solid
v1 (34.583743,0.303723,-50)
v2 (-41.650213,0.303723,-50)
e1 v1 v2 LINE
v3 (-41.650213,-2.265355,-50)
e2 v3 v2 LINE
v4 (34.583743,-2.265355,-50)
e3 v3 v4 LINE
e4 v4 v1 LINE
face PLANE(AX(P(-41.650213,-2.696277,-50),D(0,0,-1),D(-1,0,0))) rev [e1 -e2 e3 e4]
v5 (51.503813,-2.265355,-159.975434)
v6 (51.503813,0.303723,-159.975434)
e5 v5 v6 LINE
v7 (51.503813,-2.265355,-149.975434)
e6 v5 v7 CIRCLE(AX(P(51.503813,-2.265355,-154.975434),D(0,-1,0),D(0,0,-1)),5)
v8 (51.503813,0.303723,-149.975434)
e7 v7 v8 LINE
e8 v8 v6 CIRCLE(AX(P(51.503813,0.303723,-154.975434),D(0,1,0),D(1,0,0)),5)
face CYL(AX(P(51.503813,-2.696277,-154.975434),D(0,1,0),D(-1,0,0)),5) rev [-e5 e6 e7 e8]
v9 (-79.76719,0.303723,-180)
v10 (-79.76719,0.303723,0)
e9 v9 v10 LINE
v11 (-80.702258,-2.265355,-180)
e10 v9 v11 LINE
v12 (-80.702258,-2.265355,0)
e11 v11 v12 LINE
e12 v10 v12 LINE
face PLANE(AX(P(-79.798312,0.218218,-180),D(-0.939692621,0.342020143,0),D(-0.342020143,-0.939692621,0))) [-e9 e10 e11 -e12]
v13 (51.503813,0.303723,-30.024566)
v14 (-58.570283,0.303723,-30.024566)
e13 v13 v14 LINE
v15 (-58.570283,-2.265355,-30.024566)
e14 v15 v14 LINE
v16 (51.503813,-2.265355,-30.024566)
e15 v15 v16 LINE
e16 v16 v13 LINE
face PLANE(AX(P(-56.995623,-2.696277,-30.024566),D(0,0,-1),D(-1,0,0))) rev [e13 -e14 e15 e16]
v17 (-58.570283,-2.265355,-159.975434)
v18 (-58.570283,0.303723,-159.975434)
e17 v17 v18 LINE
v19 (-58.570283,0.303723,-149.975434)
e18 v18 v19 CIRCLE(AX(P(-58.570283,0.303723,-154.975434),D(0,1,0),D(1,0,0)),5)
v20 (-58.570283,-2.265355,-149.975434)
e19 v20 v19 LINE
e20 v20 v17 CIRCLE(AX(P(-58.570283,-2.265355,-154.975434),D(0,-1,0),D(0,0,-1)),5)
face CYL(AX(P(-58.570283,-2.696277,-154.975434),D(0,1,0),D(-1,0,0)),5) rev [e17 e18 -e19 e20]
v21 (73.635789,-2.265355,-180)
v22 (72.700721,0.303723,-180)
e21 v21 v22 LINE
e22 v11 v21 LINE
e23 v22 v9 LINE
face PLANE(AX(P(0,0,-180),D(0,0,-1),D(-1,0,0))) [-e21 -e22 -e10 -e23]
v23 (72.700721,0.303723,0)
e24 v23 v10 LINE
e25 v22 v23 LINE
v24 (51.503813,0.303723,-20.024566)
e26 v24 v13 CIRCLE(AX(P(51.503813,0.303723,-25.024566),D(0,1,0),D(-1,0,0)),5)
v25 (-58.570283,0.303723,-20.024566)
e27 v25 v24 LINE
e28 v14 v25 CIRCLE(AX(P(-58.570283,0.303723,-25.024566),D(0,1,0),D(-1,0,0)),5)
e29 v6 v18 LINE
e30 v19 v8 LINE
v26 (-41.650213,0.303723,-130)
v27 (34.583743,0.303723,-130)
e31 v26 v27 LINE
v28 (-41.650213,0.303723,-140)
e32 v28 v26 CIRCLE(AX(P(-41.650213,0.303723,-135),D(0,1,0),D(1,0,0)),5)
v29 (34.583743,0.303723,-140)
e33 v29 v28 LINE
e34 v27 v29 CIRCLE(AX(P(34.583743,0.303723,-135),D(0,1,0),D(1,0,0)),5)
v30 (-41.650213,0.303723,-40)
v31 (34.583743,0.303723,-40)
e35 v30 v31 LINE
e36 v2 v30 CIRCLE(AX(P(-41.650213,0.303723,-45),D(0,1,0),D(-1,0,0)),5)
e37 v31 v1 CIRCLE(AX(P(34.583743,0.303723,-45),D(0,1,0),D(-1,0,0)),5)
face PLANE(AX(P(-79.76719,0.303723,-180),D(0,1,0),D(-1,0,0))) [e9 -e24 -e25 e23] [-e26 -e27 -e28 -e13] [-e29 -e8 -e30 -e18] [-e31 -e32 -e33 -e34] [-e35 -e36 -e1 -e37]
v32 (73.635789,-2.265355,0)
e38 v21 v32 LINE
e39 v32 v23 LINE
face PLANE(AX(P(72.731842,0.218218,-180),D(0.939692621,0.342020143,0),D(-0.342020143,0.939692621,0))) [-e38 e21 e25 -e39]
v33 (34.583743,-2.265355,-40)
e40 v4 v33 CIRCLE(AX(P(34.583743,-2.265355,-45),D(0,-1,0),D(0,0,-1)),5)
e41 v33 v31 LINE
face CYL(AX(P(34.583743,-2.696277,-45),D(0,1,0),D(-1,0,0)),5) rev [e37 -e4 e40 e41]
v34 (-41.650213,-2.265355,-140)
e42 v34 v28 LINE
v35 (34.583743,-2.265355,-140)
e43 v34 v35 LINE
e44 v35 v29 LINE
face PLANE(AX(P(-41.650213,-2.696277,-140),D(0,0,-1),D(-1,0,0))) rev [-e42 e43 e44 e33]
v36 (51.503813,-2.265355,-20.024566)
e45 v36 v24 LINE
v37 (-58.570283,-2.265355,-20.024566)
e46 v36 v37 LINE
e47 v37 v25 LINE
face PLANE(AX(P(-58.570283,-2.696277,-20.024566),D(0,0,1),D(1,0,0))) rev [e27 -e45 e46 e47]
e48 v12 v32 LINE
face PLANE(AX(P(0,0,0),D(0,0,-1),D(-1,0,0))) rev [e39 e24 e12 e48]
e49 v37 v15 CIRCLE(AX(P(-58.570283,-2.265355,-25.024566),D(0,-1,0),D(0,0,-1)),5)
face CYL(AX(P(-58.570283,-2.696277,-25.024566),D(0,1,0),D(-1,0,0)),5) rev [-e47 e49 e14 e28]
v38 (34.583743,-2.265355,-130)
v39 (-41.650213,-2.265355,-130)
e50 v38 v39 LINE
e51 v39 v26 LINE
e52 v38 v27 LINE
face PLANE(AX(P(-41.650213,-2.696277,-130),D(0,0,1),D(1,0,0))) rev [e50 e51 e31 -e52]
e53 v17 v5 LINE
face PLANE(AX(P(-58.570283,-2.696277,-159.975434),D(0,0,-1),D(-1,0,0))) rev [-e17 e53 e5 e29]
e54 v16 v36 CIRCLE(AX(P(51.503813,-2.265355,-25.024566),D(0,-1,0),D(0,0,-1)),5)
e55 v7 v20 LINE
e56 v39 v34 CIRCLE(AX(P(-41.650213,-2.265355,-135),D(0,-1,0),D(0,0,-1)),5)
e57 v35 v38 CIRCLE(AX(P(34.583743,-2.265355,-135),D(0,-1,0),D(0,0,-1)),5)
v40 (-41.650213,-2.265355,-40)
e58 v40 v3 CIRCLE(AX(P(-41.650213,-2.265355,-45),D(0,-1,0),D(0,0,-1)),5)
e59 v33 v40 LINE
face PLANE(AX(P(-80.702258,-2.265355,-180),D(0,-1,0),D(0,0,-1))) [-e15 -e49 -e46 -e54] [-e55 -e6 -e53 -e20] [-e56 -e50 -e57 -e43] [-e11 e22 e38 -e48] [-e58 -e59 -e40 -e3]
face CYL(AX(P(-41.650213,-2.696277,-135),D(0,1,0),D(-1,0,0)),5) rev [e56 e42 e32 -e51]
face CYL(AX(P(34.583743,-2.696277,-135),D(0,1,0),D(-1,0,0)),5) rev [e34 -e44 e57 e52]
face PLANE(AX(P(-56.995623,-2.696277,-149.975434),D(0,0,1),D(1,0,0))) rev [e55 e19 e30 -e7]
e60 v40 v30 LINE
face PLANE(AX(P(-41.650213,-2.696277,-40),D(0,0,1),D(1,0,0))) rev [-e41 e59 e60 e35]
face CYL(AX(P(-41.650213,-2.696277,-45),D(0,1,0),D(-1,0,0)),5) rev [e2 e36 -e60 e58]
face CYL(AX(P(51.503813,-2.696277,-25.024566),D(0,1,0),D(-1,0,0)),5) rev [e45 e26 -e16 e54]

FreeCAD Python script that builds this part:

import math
import FreeCAD as App
import Part
import Sketcher
from FreeCAD import Vector
Q = App.Units.Quantity


def add_polygon(sketch, points):
    """Adds a closed chain of lines whose ends are joined by coincident constraints."""
    first, n = sketch.GeometryCount, len(points)
    for a, b in zip(points, points[1:] + points[:1]):
        sketch.addGeometry(Part.LineSegment(App.Vector(*a, 0), App.Vector(*b, 0)), False)
    for i in range(n):
        sketch.addConstraint(Sketcher.Constraint("Coincident", first + i, 2, first + (i + 1) % n, 1))

doc = App.newDocument("Part")
params = doc.addObject("Spreadsheet::Sheet", "Params")
for row, (alias, value) in enumerate([
    ("pad1_length", "180 mm"),
    ("sketch2_radius", "5 mm"),
    ("pocket1_length", "3 mm"),
], start=1):
    params.set(f"A{row}", alias)
    params.set(f"B{row}", "=" + value)
    params.setAlias(f"B{row}", alias)

body = doc.addObject("PartDesign::Body", "Body")

sketch1 = body.newObject("Sketcher::SketchObject", "Sketch")
sketch1.AttachmentSupport = (doc.getObject("XY_Plane"), [""])
sketch1.MapMode = "FlatFace"
add_polygon(sketch1, [(-79.8, 0.22), (-80.7, -2.27), (73.64, -2.27), (72.73, 0.22), (72.7, 0.3), (-79.77, 0.3)])
sketch1.addConstraint(Sketcher.Constraint("Horizontal", 1))
sketch1.addConstraint(Sketcher.Constraint("Horizontal", 4))
sketch1.addConstraint(Sketcher.Constraint("Parallel", 2, 3))
sketch1.addConstraint(Sketcher.Constraint("Parallel", 0, 5))
sketch1.addConstraint(Sketcher.Constraint("Horizontal", 2, 2, 5, 2))
sketch1.addConstraint(Sketcher.Constraint("Equal", 0, 2))
sketch1.addConstraint(Sketcher.Constraint("Angle", 0, Q("-110 deg")))
sketch1.addConstraint(Sketcher.Constraint("DistanceX", 4, 2, 4, 1, 152.467911))
sketch1.addConstraint(Sketcher.Constraint("DistanceX", 0, 2, 2, 2, 153.4341))
sketch1.addConstraint(Sketcher.Constraint("DistanceX", 1, 1, 1, 2, 154.338047))
sketch1.addConstraint(Sketcher.Constraint("DistanceX", 0, 2, -1, 1, 80.702258))
sketch1.addConstraint(Sketcher.Constraint("DistanceY", -1, 1, 2, 2, 0.218218))
pad1 = body.newObject("PartDesign::Pad", "Pad")
pad1.Profile = sketch1
pad1.setExpression("Length", "Params.pad1_length")
pad1.Reversed = True

sketch2 = body.newObject("Sketcher::SketchObject", "Sketch001")
sketch2.AttachmentSupport = (doc.getObject("XZ_Plane"), [""])
sketch2.MapMode = "FlatFace"
sketch2.AttachmentOffset = App.Placement(Vector(0, 0, -0.303723), App.Rotation())
sketch2.addGeometry(Part.LineSegment(Vector(35, -50, 0), Vector(-42, -50, 0)), False)
sketch2.addGeometry(Part.ArcOfCircle(Part.Circle(Vector(-42, -45, 0), Vector(0, 0, 1), 5), math.radians(90), math.radians(270)), False)
sketch2.addGeometry(Part.LineSegment(Vector(-42, -40, 0), Vector(35, -40, 0)), False)
sketch2.addGeometry(Part.ArcOfCircle(Part.Circle(Vector(35, -45, 0), Vector(0, 0, 1), 5), math.radians(-90), math.radians(90)), False)
sketch2.addGeometry(Part.ArcOfCircle(Part.Circle(Vector(52, -25, 0), Vector(0, 0, 1), 5), math.radians(-90), math.radians(90)), False)
sketch2.addGeometry(Part.LineSegment(Vector(52, -30, 0), Vector(-59, -30, 0)), False)
sketch2.addGeometry(Part.ArcOfCircle(Part.Circle(Vector(-59, -25, 0), Vector(0, 0, 1), 5), math.radians(90), math.radians(270)), False)
sketch2.addGeometry(Part.LineSegment(Vector(-59, -20, 0), Vector(52, -20, 0)), False)
sketch2.addGeometry(Part.ArcOfCircle(Part.Circle(Vector(-59, -155, 0), Vector(0, 0, 1), 5), math.radians(90), math.radians(270)), False)
sketch2.addGeometry(Part.LineSegment(Vector(-59, -150, 0), Vector(52, -150, 0)), False)
sketch2.addGeometry(Part.ArcOfCircle(Part.Circle(Vector(52, -155, 0), Vector(0, 0, 1), 5), math.radians(-90), math.radians(90)), False)
sketch2.addGeometry(Part.LineSegment(Vector(52, -160, 0), Vector(-59, -160, 0)), False)
sketch2.addGeometry(Part.LineSegment(Vector(35, -140, 0), Vector(-42, -140, 0)), False)
sketch2.addGeometry(Part.ArcOfCircle(Part.Circle(Vector(-42, -135, 0), Vector(0, 0, 1), 5), math.radians(90), math.radians(270)), False)
sketch2.addGeometry(Part.LineSegment(Vector(-42, -130, 0), Vector(35, -130, 0)), False)
sketch2.addGeometry(Part.ArcOfCircle(Part.Circle(Vector(35, -135, 0), Vector(0, 0, 1), 5), math.radians(-90), math.radians(90)), False)
sketch2.addConstraint(Sketcher.Constraint("Tangent", 0, 2, 1, 2))
sketch2.addConstraint(Sketcher.Constraint("Tangent", 1, 1, 2, 1))
sketch2.addConstraint(Sketcher.Constraint("Tangent", 2, 2, 3, 2))
sketch2.addConstraint(Sketcher.Constraint("Tangent", 3, 1, 0, 1))
sketch2.addConstraint(Sketcher.Constraint("Tangent", 4, 1, 5, 1))
sketch2.addConstraint(Sketcher.Constraint("Tangent", 5, 2, 6, 2))
sketch2.addConstraint(Sketcher.Constraint("Tangent", 6, 1, 7, 1))
sketch2.addConstraint(Sketcher.Constraint("Tangent", 7, 2, 4, 2))
sketch2.addConstraint(Sketcher.Constraint("Tangent", 8, 1, 9, 1))
sketch2.addConstraint(Sketcher.Constraint("Tangent", 9, 2, 10, 2))
sketch2.addConstraint(Sketcher.Constraint("Tangent", 10, 1, 11, 1))
sketch2.addConstraint(Sketcher.Constraint("Tangent", 11, 2, 8, 2))
sketch2.addConstraint(Sketcher.Constraint("Tangent", 12, 2, 13, 2))
sketch2.addConstraint(Sketcher.Constraint("Tangent", 13, 1, 14, 1))
sketch2.addConstraint(Sketcher.Constraint("Tangent", 14, 2, 15, 2))
sketch2.addConstraint(Sketcher.Constraint("Tangent", 15, 1, 12, 1))
sketch2.addConstraint(Sketcher.Constraint("Horizontal", 0))
sketch2.addConstraint(Sketcher.Constraint("Horizontal", 2))
sketch2.addConstraint(Sketcher.Constraint("Horizontal", 5))
sketch2.addConstraint(Sketcher.Constraint("Horizontal", 7))
sketch2.addConstraint(Sketcher.Constraint("Horizontal", 9))
sketch2.addConstraint(Sketcher.Constraint("Horizontal", 11))
sketch2.addConstraint(Sketcher.Constraint("Horizontal", 12))
sketch2.addConstraint(Sketcher.Constraint("Horizontal", 14))
sketch2.addConstraint(Sketcher.Constraint("Equal", 3, 4))
sketch2.addConstraint(Sketcher.Constraint("Equal", 6, 8))
sketch2.addConstraint(Sketcher.Constraint("Equal", 10, 13))
sketch2.addConstraint(Sketcher.Constraint("Vertical", 6, 3, 8, 3))
sketch2.addConstraint(Sketcher.Constraint("Vertical", 4, 3, 10, 3))
sketch2.addConstraint(Sketcher.Constraint("Vertical", 1, 3, 13, 3))
sketch2.addConstraint(Sketcher.Constraint("Vertical", 3, 3, 15, 3))
sketch2.addConstraint(Sketcher.Constraint("Radius", 1, 5.0))
sketch2.addConstraint(Sketcher.Constraint("DistanceY", 1, 3, -1, 1, 45.0))
sketch2.addConstraint(Sketcher.Constraint("DistanceY", 13, 3, -1, 1, 135.0))
sketch2.addConstraint(Sketcher.Constraint("DistanceX", 0, 2, 0, 1, 76.233956))
sketch2.addConstraint(Sketcher.Constraint("DistanceX", 5, 2, 5, 1, 110.074097))
sketch2.addConstraint(Sketcher.Constraint("DistanceX", 3, 3, 4, 3, 16.92007))
sketch2.addConstraint(Sketcher.Constraint("DistanceX", 1, 3, -1, 1, 41.650213))
sketch2.addConstraint(Sketcher.Constraint("DistanceY", 4, 3, -1, 1, 25.024566))
sketch2.addConstraint(Sketcher.Constraint("DistanceY", 8, 3, -1, 1, 154.975434))
sketch2.setExpression("Constraints[31]", "Params.sketch2_radius")
pocket1 = body.newObject("PartDesign::Pocket", "Pocket")
pocket1.Profile = sketch2
pocket1.setExpression("Length", "Params.pocket1_length")
pocket1.Reversed = True

doc.recompute()
